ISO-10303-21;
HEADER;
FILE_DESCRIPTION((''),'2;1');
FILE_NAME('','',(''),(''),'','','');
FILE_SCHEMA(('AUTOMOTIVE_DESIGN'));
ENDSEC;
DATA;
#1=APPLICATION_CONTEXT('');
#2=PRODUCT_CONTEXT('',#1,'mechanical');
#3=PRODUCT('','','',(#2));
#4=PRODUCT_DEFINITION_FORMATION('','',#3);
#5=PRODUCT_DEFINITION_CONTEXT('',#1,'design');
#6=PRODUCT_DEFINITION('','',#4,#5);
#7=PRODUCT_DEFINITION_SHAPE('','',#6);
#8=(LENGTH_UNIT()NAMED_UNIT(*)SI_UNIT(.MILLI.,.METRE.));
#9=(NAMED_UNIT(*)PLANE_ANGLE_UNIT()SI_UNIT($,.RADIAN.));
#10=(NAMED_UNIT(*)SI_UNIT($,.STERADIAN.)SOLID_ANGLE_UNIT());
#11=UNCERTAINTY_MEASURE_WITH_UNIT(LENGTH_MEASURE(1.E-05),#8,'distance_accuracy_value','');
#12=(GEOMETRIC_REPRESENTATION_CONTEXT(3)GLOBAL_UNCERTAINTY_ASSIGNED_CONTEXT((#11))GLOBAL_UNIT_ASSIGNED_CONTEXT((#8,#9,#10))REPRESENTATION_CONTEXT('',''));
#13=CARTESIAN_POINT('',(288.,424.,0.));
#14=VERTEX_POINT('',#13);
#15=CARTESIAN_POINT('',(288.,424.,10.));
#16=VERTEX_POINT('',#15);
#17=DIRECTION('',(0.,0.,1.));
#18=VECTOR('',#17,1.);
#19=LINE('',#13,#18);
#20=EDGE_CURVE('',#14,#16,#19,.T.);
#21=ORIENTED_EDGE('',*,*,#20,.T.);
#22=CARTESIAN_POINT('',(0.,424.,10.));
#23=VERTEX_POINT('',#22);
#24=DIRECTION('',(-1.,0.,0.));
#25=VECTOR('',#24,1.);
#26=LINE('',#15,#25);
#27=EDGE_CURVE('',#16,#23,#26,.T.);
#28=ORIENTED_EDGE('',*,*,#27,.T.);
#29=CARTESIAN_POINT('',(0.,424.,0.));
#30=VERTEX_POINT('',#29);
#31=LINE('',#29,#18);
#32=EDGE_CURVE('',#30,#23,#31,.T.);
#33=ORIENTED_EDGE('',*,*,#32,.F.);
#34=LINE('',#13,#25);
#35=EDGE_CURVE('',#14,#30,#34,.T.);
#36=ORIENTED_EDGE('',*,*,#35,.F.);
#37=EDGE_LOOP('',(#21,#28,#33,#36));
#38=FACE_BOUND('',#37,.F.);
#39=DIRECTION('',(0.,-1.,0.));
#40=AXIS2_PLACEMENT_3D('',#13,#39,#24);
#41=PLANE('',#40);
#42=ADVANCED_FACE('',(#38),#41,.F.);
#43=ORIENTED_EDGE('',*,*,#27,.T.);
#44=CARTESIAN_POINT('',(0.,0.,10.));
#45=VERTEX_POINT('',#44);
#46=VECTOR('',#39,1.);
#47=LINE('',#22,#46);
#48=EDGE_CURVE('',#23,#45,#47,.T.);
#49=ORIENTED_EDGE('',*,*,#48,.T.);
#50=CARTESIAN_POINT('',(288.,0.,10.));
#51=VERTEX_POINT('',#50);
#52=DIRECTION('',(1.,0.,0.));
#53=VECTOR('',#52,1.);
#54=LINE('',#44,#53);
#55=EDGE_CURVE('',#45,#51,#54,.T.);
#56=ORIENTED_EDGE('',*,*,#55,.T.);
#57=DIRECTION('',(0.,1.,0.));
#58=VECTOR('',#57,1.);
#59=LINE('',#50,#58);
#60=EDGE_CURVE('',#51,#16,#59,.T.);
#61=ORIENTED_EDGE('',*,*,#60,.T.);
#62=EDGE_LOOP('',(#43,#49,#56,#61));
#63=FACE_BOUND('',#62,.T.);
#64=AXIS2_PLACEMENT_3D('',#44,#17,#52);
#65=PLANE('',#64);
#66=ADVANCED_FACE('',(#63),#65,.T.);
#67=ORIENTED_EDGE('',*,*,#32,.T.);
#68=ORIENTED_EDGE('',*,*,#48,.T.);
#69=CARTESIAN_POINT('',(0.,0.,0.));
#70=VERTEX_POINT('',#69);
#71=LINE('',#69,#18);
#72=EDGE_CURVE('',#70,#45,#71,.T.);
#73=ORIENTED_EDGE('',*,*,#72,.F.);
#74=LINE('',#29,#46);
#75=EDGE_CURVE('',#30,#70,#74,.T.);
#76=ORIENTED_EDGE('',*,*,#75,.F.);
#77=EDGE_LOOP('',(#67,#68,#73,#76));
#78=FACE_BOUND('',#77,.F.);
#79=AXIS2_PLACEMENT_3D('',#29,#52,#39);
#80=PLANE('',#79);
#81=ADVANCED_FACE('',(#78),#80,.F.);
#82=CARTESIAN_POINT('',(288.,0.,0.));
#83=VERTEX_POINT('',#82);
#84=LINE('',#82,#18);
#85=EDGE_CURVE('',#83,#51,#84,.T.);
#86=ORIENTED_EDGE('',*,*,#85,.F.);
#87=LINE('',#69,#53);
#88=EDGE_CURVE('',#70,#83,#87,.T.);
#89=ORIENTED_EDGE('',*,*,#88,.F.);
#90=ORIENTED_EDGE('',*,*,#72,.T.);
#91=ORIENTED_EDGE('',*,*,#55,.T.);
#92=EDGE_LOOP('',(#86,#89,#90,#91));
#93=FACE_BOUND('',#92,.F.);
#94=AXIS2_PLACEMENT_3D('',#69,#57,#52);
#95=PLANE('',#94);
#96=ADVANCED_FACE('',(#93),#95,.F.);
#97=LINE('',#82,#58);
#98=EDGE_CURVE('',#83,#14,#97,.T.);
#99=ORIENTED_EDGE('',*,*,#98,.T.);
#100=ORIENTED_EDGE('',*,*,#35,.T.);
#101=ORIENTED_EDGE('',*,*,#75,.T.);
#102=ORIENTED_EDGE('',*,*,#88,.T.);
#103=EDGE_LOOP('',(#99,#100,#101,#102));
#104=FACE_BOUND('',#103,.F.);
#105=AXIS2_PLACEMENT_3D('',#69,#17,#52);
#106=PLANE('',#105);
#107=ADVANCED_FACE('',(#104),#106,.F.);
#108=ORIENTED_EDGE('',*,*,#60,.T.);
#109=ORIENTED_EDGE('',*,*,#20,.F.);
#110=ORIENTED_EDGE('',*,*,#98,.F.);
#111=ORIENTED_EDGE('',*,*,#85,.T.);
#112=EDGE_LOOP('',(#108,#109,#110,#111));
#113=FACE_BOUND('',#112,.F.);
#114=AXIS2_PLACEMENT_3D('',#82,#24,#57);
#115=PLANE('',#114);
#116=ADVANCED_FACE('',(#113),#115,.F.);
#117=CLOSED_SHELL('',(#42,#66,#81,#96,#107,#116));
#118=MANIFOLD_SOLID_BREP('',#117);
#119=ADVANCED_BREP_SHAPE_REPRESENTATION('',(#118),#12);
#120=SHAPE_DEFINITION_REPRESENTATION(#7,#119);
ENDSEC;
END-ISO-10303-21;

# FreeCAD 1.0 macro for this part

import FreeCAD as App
import Part
import Sketcher
from FreeCAD import Vector


def add_polygon(sketch, points):
    """Adds a closed chain of lines whose ends are joined by coincident constraints."""
    first, n = sketch.GeometryCount, len(points)
    for a, b in zip(points, points[1:] + points[:1]):
        sketch.addGeometry(Part.LineSegment(App.Vector(*a, 0), App.Vector(*b, 0)), False)
    for i in range(n):
        sketch.addConstraint(Sketcher.Constraint("Coincident", first + i, 2, first + (i + 1) % n, 1))

doc = App.newDocument("Part")
params = doc.addObject("Spreadsheet::Sheet", "Params")
for row, (alias, value) in enumerate([
    ("sketch1_width", "288 mm"),
    ("sketch1_height", "424 mm"),
    ("pad1_length", "10 mm"),
], start=1):
    params.set(f"A{row}", alias)
    params.set(f"B{row}", "=" + value)
    params.setAlias(f"B{row}", alias)

body = doc.addObject("PartDesign::Body", "Body")

# Sketch on XY plane
sketch1 = body.newObject("Sketcher::SketchObject", "Sketch")
sketch1.AttachmentSupport = (doc.getObject("XY_Plane"), [""])
sketch1.MapMode = "FlatFace"
add_polygon(sketch1, [(0, 424), (0, 0), (288, 0), (288, 424)])  # lines 0-3
sketch1.addConstraint([
    Sketcher.Constraint("Vertical", 0),
    Sketcher.Constraint("Horizontal", 1),
    Sketcher.Constraint("Vertical", 2),
    Sketcher.Constraint("Horizontal", 3),
    Sketcher.Constraint("Coincident", 0, 2, -1, 1),
    Sketcher.Constraint("DistanceX", 1, 1, 1, 2, 288.0),
    Sketcher.Constraint("DistanceY", 0, 2, 0, 1, 424.0),
])
sketch1.setExpression("Constraints[9]", "Params.sketch1_width")
sketch1.setExpression("Constraints[10]", "Params.sketch1_height")
pad1 = body.newObject("PartDesign::Pad", "Pad")
pad1.Profile = sketch1
pad1.setExpression("Length", "Params.pad1_length")

doc.recompute()
